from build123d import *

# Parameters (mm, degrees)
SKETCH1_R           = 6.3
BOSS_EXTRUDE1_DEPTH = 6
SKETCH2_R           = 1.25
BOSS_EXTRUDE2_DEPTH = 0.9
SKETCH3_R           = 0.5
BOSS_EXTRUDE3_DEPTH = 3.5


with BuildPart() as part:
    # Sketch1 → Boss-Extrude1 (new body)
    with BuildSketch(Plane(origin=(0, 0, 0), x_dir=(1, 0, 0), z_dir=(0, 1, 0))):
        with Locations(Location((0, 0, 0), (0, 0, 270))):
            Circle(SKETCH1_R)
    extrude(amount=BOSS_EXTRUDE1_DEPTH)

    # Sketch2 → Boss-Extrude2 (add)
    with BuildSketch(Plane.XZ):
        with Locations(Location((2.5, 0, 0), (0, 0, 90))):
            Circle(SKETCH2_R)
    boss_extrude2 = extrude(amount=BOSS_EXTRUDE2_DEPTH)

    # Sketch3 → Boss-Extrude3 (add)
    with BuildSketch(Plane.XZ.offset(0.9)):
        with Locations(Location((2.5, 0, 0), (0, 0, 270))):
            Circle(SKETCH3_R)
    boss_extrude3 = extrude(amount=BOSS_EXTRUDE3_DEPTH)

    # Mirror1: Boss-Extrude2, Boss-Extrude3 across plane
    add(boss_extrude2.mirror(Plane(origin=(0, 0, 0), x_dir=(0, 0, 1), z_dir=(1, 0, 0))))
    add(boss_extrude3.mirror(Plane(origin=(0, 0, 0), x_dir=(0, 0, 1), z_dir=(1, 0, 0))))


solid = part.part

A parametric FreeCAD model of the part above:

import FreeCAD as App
import Part
import Sketcher

V = App.Vector
Q = App.Units.Quantity

doc = App.newDocument("Part")
body = doc.addObject("PartDesign::Body", "Body")

sketch1 = body.newObject("Sketcher::SketchObject", "Sketch")
sketch1.AttachmentSupport = (doc.getObject("XZ_Plane"), [""])
sketch1.MapMode = "FlatFace"
sketch1.addGeometry(Part.Circle(V(0, 0, 0), V(0, 0, 1), 6), False)
sketch1.addConstraint(Sketcher.Constraint("Coincident", 0, 3, -1, 1))
sketch1.addConstraint(Sketcher.Constraint("Diameter", 0, Q("12.6 mm")))
pad1 = body.newObject("PartDesign::Pad", "Pad")
pad1.Profile = sketch1
pad1.Length = 6
pad1.Reversed = True

sketch2 = body.newObject("Sketcher::SketchObject", "Sketch001")
sketch2.AttachmentSupport = (doc.getObject("XZ_Plane"), [""])
sketch2.MapMode = "FlatFace"
sketch2.addGeometry(Part.Circle(V(2.5, 0, 0), V(0, 0, 1), 1.2), False)
sketch2.addConstraint(Sketcher.Constraint("PointOnObject", 0, 3, -1))
sketch2.addConstraint(Sketcher.Constraint("Diameter", 0, Q("2.5 mm")))
sketch2.addConstraint(Sketcher.Constraint("DistanceX", -1, 1, 0, 3, Q("2.5 mm")))
pad2 = body.newObject("PartDesign::Pad", "Pad001")
pad2.Profile = sketch2
pad2.Length = 0.9

sketch3 = body.newObject("Sketcher::SketchObject", "Sketch002")
sketch3.AttachmentSupport = (doc.getObject("XZ_Plane"), [""])
sketch3.MapMode = "FlatFace"
sketch3.AttachmentOffset = App.Placement(V(0, 0, 0.9), App.Rotation())
sketch3.addGeometry(Part.Circle(V(2.5, 0, 0), V(0, 0, 1), 0.5), False)
sketch3.addConstraint(Sketcher.Constraint("PointOnObject", 0, 3, -1))
sketch3.addConstraint(Sketcher.Constraint("Diameter", 0, Q("1 mm")))
sketch3.addConstraint(Sketcher.Constraint("DistanceX", -1, 1, 0, 3, Q("2.5 mm")))
pad3 = body.newObject("PartDesign::Pad", "Pad002")
pad3.Profile = sketch3
pad3.Length = 3.5
doc.recompute()

mirrored = body.newObject("PartDesign::Mirrored", "Mirrored")
mirrored.Originals = [pad2, pad3]
mirrored.MirrorPlane = (doc.getObject("YZ_Plane"), [""])
body.Tip = mirrored

doc.recompute()
